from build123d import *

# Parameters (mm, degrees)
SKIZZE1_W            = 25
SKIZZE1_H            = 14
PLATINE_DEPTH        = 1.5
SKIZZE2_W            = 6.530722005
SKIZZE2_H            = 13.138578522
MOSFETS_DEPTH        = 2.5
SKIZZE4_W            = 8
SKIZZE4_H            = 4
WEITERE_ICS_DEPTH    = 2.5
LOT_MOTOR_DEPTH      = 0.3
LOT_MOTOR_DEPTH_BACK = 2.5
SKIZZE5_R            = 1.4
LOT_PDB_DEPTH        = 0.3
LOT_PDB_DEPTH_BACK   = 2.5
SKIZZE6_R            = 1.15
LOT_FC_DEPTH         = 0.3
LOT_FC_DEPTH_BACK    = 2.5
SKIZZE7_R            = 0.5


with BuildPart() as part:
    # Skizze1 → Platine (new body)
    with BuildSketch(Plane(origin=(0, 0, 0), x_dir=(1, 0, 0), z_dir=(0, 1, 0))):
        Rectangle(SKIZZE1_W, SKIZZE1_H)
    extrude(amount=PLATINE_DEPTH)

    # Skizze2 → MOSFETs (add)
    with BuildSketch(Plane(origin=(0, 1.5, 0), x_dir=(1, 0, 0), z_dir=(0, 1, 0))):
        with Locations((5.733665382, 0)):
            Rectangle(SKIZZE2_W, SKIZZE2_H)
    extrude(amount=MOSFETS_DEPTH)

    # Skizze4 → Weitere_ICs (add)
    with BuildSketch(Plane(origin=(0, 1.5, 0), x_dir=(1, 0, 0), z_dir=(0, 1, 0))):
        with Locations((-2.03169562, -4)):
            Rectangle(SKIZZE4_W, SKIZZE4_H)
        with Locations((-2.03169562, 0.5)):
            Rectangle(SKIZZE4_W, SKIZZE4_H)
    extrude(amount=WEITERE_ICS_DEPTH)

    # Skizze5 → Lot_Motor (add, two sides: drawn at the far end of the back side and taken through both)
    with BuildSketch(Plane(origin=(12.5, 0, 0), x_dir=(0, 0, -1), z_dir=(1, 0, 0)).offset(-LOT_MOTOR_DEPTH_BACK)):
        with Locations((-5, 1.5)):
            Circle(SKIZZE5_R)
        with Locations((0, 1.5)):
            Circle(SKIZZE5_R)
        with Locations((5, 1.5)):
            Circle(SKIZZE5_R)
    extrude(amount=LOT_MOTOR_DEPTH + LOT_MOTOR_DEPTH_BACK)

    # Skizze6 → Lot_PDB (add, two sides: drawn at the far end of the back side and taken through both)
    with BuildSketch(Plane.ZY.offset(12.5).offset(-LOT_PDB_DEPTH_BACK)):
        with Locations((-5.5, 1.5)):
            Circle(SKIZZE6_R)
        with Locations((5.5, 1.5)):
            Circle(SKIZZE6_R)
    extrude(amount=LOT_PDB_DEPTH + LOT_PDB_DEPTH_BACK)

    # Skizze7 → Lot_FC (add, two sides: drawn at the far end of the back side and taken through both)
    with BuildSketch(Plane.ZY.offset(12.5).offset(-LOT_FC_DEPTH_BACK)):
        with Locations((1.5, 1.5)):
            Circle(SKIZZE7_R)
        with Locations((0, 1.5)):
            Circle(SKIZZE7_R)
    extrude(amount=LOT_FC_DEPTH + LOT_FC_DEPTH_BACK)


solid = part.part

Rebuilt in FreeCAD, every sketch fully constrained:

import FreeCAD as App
import Part
import Sketcher

V = App.Vector
Q = App.Units.Quantity


def add_polygon(sketch, points):
    """Adds a closed chain of lines whose ends are joined by coincident constraints."""
    first, n = sketch.GeometryCount, len(points)
    for a, b in zip(points, points[1:] + points[:1]):
        sketch.addGeometry(Part.LineSegment(App.Vector(*a, 0), App.Vector(*b, 0)), False)
    for i in range(n):
        sketch.addConstraint(Sketcher.Constraint("Coincident", first + i, 2, first + (i + 1) % n, 1))

doc = App.newDocument("Part")
body = doc.addObject("PartDesign::Body", "Body")

sketch1 = body.newObject("Sketcher::SketchObject", "Sketch")
sketch1.AttachmentSupport = (doc.getObject("XZ_Plane"), [""])
sketch1.MapMode = "FlatFace"
add_polygon(sketch1, [(-12, -7), (-12, 7), (12, 7), (12, -7)])
sketch1.addConstraint(Sketcher.Constraint("Vertical", 0))
sketch1.addConstraint(Sketcher.Constraint("Horizontal", 1))
sketch1.addConstraint(Sketcher.Constraint("Vertical", 2))
sketch1.addConstraint(Sketcher.Constraint("Horizontal", 3))
sketch1.addConstraint(Sketcher.Constraint("Symmetric", 0, 2, 2, 2, -1, 1))
sketch1.addConstraint(Sketcher.Constraint("DistanceX", 1, 1, 1, 2, Q("25 mm")))
sketch1.addConstraint(Sketcher.Constraint("DistanceY", 0, 1, 0, 2, Q("14 mm")))
pad1 = body.newObject("PartDesign::Pad", "Pad")
pad1.Profile = sketch1
pad1.Length = 1.5
pad1.Reversed = True

sketch2 = body.newObject("Sketcher::SketchObject", "Sketch001")
sketch2.AttachmentSupport = (doc.getObject("XZ_Plane"), [""])
sketch2.MapMode = "FlatFace"
sketch2.AttachmentOffset = App.Placement(V(0, 0, -1.5), App.Rotation())
add_polygon(sketch2, [(2, -7), (2, 7), (9, 7), (9, -7)])
sketch2.addConstraint(Sketcher.Constraint("Vertical", 0))
sketch2.addConstraint(Sketcher.Constraint("Horizontal", 1))
sketch2.addConstraint(Sketcher.Constraint("Vertical", 2))
sketch2.addConstraint(Sketcher.Constraint("Horizontal", 3))
sketch2.addConstraint(Sketcher.Constraint("DistanceY", 0, 1, 0, 2, Q("13.138579 mm")))
sketch2.addConstraint(Sketcher.Constraint("DistanceX", 1, 1, 1, 2, Q("6.530722 mm")))
sketch2.addConstraint(Sketcher.Constraint("DistanceY", -1, 1, 0, 2, Q("6.569289 mm")))
sketch2.addConstraint(Sketcher.Constraint("DistanceX", -1, 1, 0, 2, Q("2.468304 mm")))
pad2 = body.newObject("PartDesign::Pad", "Pad001")
pad2.Profile = sketch2
pad2.Length = 2.5
pad2.Reversed = True

sketch3 = body.newObject("Sketcher::SketchObject", "Sketch002")
sketch3.AttachmentSupport = (doc.getObject("XZ_Plane"), [""])
sketch3.MapMode = "FlatFace"
sketch3.AttachmentOffset = App.Placement(V(0, 0, -1.5), App.Rotation())
add_polygon(sketch3, [(-6, 2), (-6, 6), (2, 6), (2, 2)])
add_polygon(sketch3, [(-6, -2.5), (-6, 1.5), (2, 1.5), (2, -2.5)])
sketch3.addConstraint(Sketcher.Constraint("Vertical", 0))
sketch3.addConstraint(Sketcher.Constraint("Horizontal", 1))
sketch3.addConstraint(Sketcher.Constraint("Vertical", 2))
sketch3.addConstraint(Sketcher.Constraint("Horizontal", 3))
sketch3.addConstraint(Sketcher.Constraint("Vertical", 4))
sketch3.addConstraint(Sketcher.Constraint("Horizontal", 5))
sketch3.addConstraint(Sketcher.Constraint("Vertical", 6))
sketch3.addConstraint(Sketcher.Constraint("Horizontal", 7))
sketch3.addConstraint(Sketcher.Constraint("Vertical", 3, 2, 4, 2))
sketch3.addConstraint(Sketcher.Constraint("Vertical", 2, 2, 5, 2))
sketch3.addConstraint(Sketcher.Constraint("Equal", 2, 4))
sketch3.addConstraint(Sketcher.Constraint("DistanceX", 1, 1, 1, 2, Q("8 mm")))
sketch3.addConstraint(Sketcher.Constraint("DistanceY", 0, 1, 0, 2, Q("4 mm")))
sketch3.addConstraint(Sketcher.Constraint("DistanceY", -1, 1, 0, 2, Q("6 mm")))
sketch3.addConstraint(Sketcher.Constraint("DistanceY", -1, 1, 4, 2, Q("1.5 mm")))
sketch3.addConstraint(Sketcher.Constraint("DistanceX", 0, 2, -1, 1, Q("6.031696 mm")))
pad3 = body.newObject("PartDesign::Pad", "Pad002")
pad3.Profile = sketch3
pad3.Length = 2.5
pad3.Reversed = True

sketch4 = body.newObject("Sketcher::SketchObject", "Sketch003")
sketch4.AttachmentSupport = (doc.getObject("YZ_Plane"), [""])
sketch4.MapMode = "FlatFace"
sketch4.AttachmentOffset = App.Placement(V(0, 0, 12.5), App.Rotation())
sketch4.addGeometry(Part.Circle(V(1.5, 5, 0), V(0, 0, 1), 1.4), False)
sketch4.addGeometry(Part.Circle(V(1.5, 0, 0), V(0, 0, 1), 1.4), False)
sketch4.addGeometry(Part.Circle(V(1.5, -5, 0), V(0, 0, 1), 1.4), False)
sketch4.addConstraint(Sketcher.Constraint("Equal", 0, 1))
sketch4.addConstraint(Sketcher.Constraint("Equal", 1, 2))
sketch4.addConstraint(Sketcher.Constraint("Symmetric", 0, 3, 2, 3, -1))
sketch4.addConstraint(Sketcher.Constraint("PointOnObject", 1, 3, -1))
sketch4.addConstraint(Sketcher.Constraint("Vertical", 0, 3, 1, 3))
sketch4.addConstraint(Sketcher.Constraint("Diameter", 0, Q("2.8 mm")))
sketch4.addConstraint(Sketcher.Constraint("DistanceY", -1, 1, 0, 3, Q("5 mm")))
sketch4.addConstraint(Sketcher.Constraint("DistanceX", -1, 1, 0, 3, Q("1.5 mm")))
pad4 = body.newObject("PartDesign::Pad", "Pad003")
pad4.Profile = sketch4
pad4.Type = "TwoLengths"
pad4.Length = 0.3
pad4.Length2 = 2.5

sketch5 = body.newObject("Sketcher::SketchObject", "Sketch004")
sketch5.AttachmentSupport = (doc.getObject("YZ_Plane"), [""])
sketch5.MapMode = "FlatFace"
sketch5.AttachmentOffset = App.Placement(V(0, 0, -12.5), App.Rotation())
sketch5.addGeometry(Part.Circle(V(1.5, -5.5, 0), V(0, 0, 1), 1.1), False)
sketch5.addGeometry(Part.Circle(V(1.5, 5.5, 0), V(0, 0, 1), 1.1), False)
sketch5.addConstraint(Sketcher.Constraint("Equal", 0, 1))
sketch5.addConstraint(Sketcher.Constraint("Symmetric", 0, 3, 1, 3, -1))
sketch5.addConstraint(Sketcher.Constraint("Diameter", 0, Q("2.3 mm")))
sketch5.addConstraint(Sketcher.Constraint("DistanceY", 0, 3, 1, 3, Q("11 mm")))
sketch5.addConstraint(Sketcher.Constraint("DistanceX", -1, 1, 0, 3, Q("1.5 mm")))
pad5 = body.newObject("PartDesign::Pad", "Pad004")
pad5.Profile = sketch5
pad5.Type = "TwoLengths"
pad5.Length = 0.3
pad5.Length2 = 2.5
pad5.Reversed = True

sketch6 = body.newObject("Sketcher::SketchObject", "Sketch005")
sketch6.AttachmentSupport = (doc.getObject("YZ_Plane"), [""])
sketch6.MapMode = "FlatFace"
sketch6.AttachmentOffset = App.Placement(V(0, 0, -12.5), App.Rotation())
sketch6.addGeometry(Part.Circle(V(1.5, 1.5, 0), V(0, 0, 1), 0.5), False)
sketch6.addGeometry(Part.Circle(V(1.5, 0, 0), V(0, 0, 1), 0.5), False)
sketch6.addConstraint(Sketcher.Constraint("Equal", 0, 1))
sketch6.addConstraint(Sketcher.Constraint("PointOnObject", 1, 3, -1))
sketch6.addConstraint(Sketcher.Constraint("Vertical", 0, 3, 1, 3))
sketch6.addConstraint(Sketcher.Constraint("Diameter", 0, Q("1 mm")))
sketch6.addConstraint(Sketcher.Constraint("DistanceX", -1, 1, 0, 3, Q("1.5 mm")))
sketch6.addConstraint(Sketcher.Constraint("DistanceY", -1, 1, 0, 3, Q("1.5 mm")))
pad6 = body.newObject("PartDesign::Pad", "Pad005")
pad6.Profile = sketch6
pad6.Type = "TwoLengths"
pad6.Length = 0.3
pad6.Length2 = 2.5
pad6.Reversed = True

doc.recompute()
